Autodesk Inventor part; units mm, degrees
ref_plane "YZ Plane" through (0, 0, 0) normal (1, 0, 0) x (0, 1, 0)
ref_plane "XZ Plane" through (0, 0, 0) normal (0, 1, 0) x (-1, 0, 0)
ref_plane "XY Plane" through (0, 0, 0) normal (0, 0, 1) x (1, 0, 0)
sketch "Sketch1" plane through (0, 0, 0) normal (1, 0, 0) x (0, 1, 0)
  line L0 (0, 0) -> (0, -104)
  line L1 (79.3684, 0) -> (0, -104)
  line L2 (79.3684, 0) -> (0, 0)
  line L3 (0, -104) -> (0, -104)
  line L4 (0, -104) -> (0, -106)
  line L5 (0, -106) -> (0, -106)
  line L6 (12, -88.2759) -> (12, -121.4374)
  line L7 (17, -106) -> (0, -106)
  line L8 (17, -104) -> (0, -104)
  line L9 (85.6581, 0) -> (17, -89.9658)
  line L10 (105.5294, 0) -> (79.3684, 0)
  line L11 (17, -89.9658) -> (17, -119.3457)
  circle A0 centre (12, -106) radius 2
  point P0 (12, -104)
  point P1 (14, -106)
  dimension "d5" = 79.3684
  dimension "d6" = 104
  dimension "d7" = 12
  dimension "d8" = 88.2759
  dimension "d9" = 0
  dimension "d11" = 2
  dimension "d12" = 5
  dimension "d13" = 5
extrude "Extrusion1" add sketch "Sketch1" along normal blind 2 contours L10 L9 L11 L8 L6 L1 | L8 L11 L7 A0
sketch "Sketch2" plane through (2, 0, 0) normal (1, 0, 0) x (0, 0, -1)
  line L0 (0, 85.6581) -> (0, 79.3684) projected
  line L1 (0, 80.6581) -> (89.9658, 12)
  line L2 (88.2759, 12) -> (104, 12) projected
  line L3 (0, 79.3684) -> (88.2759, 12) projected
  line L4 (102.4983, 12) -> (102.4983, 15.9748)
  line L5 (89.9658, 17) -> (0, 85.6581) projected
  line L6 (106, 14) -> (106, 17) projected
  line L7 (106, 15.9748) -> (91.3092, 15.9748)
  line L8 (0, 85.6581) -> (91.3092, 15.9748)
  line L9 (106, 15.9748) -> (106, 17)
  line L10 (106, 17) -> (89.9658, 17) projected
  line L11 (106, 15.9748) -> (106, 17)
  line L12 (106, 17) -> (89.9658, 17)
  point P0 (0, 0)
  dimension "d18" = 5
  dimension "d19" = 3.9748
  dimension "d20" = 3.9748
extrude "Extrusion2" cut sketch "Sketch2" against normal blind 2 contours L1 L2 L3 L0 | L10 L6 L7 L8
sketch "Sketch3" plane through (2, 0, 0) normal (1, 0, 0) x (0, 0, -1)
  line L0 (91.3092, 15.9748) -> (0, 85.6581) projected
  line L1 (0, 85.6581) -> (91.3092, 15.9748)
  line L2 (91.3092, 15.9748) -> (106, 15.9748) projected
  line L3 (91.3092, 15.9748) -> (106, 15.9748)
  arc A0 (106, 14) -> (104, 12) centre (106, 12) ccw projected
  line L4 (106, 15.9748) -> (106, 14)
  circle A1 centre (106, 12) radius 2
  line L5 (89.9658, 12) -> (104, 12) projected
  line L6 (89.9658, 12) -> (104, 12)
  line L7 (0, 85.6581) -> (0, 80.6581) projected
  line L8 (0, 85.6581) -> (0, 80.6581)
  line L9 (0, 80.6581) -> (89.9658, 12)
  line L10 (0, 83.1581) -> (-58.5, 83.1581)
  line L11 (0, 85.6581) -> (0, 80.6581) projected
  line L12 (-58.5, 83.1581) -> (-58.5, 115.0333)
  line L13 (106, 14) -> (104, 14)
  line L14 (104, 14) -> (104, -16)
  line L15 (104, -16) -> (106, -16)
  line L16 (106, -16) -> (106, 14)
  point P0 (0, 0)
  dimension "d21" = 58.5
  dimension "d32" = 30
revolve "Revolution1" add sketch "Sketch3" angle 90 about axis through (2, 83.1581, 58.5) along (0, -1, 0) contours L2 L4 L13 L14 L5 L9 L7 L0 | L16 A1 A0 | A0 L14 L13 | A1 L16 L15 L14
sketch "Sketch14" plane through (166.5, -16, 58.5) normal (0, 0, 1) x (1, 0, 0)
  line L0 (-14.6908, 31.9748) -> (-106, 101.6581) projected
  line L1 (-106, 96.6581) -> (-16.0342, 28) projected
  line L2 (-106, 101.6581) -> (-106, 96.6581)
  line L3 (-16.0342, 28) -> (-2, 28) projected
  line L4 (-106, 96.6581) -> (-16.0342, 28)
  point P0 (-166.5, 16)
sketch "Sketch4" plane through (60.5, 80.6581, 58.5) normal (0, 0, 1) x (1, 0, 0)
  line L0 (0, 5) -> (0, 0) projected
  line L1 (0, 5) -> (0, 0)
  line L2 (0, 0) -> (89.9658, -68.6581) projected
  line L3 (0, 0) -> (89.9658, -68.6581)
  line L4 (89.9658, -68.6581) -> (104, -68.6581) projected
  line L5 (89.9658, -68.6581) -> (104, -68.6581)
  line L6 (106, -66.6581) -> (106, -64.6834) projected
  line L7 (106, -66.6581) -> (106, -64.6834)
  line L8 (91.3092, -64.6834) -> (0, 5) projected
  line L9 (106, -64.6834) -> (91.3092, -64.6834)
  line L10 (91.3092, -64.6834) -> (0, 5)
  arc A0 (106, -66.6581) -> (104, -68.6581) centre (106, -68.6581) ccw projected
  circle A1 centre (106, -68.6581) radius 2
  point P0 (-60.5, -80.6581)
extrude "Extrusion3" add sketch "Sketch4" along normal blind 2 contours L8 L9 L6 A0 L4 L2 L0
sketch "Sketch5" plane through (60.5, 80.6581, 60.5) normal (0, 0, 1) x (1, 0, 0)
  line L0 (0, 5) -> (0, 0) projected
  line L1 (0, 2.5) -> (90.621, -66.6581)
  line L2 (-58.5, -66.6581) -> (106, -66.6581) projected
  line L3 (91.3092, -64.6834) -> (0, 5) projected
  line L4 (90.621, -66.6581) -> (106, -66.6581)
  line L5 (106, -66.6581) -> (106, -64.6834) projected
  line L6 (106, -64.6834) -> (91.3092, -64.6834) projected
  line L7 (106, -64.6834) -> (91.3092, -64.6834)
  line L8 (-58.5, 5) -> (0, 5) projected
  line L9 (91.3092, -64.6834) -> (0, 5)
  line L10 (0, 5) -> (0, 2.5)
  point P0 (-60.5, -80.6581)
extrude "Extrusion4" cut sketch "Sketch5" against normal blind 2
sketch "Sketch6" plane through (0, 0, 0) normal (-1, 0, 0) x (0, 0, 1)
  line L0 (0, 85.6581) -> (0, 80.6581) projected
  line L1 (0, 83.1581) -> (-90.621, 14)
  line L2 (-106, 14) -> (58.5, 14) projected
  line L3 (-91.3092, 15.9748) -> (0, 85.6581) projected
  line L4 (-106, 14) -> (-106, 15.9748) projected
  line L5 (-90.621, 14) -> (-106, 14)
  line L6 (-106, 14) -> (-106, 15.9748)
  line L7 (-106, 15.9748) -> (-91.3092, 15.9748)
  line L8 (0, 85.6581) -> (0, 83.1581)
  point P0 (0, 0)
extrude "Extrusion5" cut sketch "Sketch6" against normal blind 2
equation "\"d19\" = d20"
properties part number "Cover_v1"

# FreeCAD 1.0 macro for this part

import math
import FreeCAD as App
import Part
import Sketcher
from FreeCAD import Vector
Q = App.Units.Quantity

doc = App.newDocument("Part")
params = doc.addObject("Spreadsheet::Sheet", "Params")
for row, (alias, value) in enumerate([
    ("sketch1_radius", "2 mm"),
    ("pad1_length", "2 mm"),
    ("sketch2_height", "1.69 mm"),
    ("pocket1_length", "2 mm"),
    ("sketch3_width", "5 mm"),
    ("sketch3_width2", "28 mm"),
    ("sketch3_height", "2 mm"),
    ("revolution_angle", "90 deg"),
    ("sketch4_radius", "2 mm"),
    ("sketch4_height", "5 mm"),
    ("pad2_length", "2 mm"),
    ("sketch5_height", "2.5 mm"),
    ("pocket2_length", "2 mm"),
    ("sketch6_width", "2.5 mm"),
    ("pocket3_length", "2 mm"),
], start=1):
    params.set(f"A{row}", alias)
    params.set(f"B{row}", "=" + value)
    params.setAlias(f"B{row}", alias)

body = doc.addObject("PartDesign::Body", "Body")

sketch1 = body.newObject("Sketcher::SketchObject", "Sketch")
sketch1.AttachmentSupport = (doc.getObject("YZ_Plane"), [""])
sketch1.MapMode = "FlatFace"
sketch1.addGeometry(Part.LineSegment(Vector(85.6581, 0, 0), Vector(79.3684, 0, 0)), False)
sketch1.addGeometry(Part.LineSegment(Vector(79.3684, 0, 0), Vector(11.99998, -88.275885, 0)), False)
sketch1.addGeometry(Part.LineSegment(Vector(12, -88.2759, 0), Vector(12, -104, 0)), False)
sketch1.addGeometry(Part.ArcOfCircle(Part.Circle(Vector(12, -106, 0), Vector(0, 0, 1), 2), math.radians(0), math.radians(90)), False)
sketch1.addGeometry(Part.LineSegment(Vector(14, -106, 0), Vector(17, -106, 0)), False)
sketch1.addGeometry(Part.LineSegment(Vector(17, -106, 0), Vector(17, -89.9658, 0)), False)
sketch1.addGeometry(Part.LineSegment(Vector(17, -89.9658, 0), Vector(85.6581, 0, 0)), False)
sketch1.addConstraint(Sketcher.Constraint("Coincident", 0, 2, 1, 1))
sketch1.addConstraint(Sketcher.Constraint("Coincident", 1, 2, 2, 1))
sketch1.addConstraint(Sketcher.Constraint("Coincident", 2, 2, 3, 2))
sketch1.addConstraint(Sketcher.Constraint("Coincident", 3, 1, 4, 1))
sketch1.addConstraint(Sketcher.Constraint("Coincident", 4, 2, 5, 1))
sketch1.addConstraint(Sketcher.Constraint("Coincident", 5, 2, 6, 1))
sketch1.addConstraint(Sketcher.Constraint("Coincident", 6, 2, 0, 1))
sketch1.addConstraint(Sketcher.Constraint("Horizontal", 0))
sketch1.addConstraint(Sketcher.Constraint("Vertical", 2))
sketch1.addConstraint(Sketcher.Constraint("Horizontal", 4))
sketch1.addConstraint(Sketcher.Constraint("Vertical", 5))
sketch1.addConstraint(Sketcher.Constraint("PointOnObject", 0, 2, -1))
sketch1.addConstraint(Sketcher.Constraint("Parallel", 1, 6))
sketch1.addConstraint(Sketcher.Constraint("Vertical", 3, 3, 1, 2))
sketch1.addConstraint(Sketcher.Constraint("Radius", 3, 2.0))
sketch1.addConstraint(Sketcher.Constraint("DistanceX", -1, 1, 3, 3, 12.0))
sketch1.addConstraint(Sketcher.Constraint("DistanceY", 2, 2, -1, 1, 104.0))
sketch1.addConstraint(Sketcher.Constraint("DistanceY", 3, 1, 2, 2, 2.0))
sketch1.addConstraint(Sketcher.Constraint("DistanceX", 3, 3, 4, 2, 5.0))
sketch1.addConstraint(Sketcher.Constraint("DistanceY", 1, 2, -1, 1, 88.276))
sketch1.addConstraint(Sketcher.Constraint("DistanceX", -1, 1, 0, 2, 79.3684))
sketch1.addConstraint(Sketcher.Constraint("DistanceY", 5, 2, 1, 2, 1.69))
sketch1.setExpression("Constraints[14]", "Params.sketch1_radius")
pad1 = body.newObject("PartDesign::Pad", "Pad")
pad1.Profile = sketch1
pad1.setExpression("Length", "Params.pad1_length")

sketch2 = body.newObject("Sketcher::SketchObject", "Sketch001")
sketch2.AttachmentSupport = (doc.getObject("YZ_Plane"), [""])
sketch2.MapMode = "FlatFace"
sketch2.AttachmentOffset = App.Placement(Vector(0, 0, 2), App.Rotation())
sketch2.addGeometry(Part.LineSegment(Vector(12, -89.9658, 0), Vector(80.6581, 0, 0)), False)
sketch2.addGeometry(Part.LineSegment(Vector(80.6581, 0, 0), Vector(79.3684, 0, 0)), False)
sketch2.addGeometry(Part.LineSegment(Vector(79.3684, 0, 0), Vector(12, -88.2759, 0)), False)
sketch2.addGeometry(Part.LineSegment(Vector(12, -88.2759, 0), Vector(12, -89.9658, 0)), False)
sketch2.addGeometry(Part.LineSegment(Vector(17, -106, 0), Vector(17, -89.9658, 0)), False)
sketch2.addGeometry(Part.LineSegment(Vector(17.000016, -89.965812, 0), Vector(15.9748, -91.3092, 0)), False)
sketch2.addGeometry(Part.LineSegment(Vector(15.9748, -91.3092, 0), Vector(15.9748, -106, 0)), False)
sketch2.addGeometry(Part.LineSegment(Vector(15.9748, -106, 0), Vector(17, -106, 0)), False)
sketch2.addConstraint(Sketcher.Constraint("Coincident", 0, 2, 1, 1))
sketch2.addConstraint(Sketcher.Constraint("Coincident", 1, 2, 2, 1))
sketch2.addConstraint(Sketcher.Constraint("Coincident", 2, 2, 3, 1))
sketch2.addConstraint(Sketcher.Constraint("Coincident", 3, 2, 0, 1))
sketch2.addConstraint(Sketcher.Constraint("Coincident", 4, 2, 5, 1))
sketch2.addConstraint(Sketcher.Constraint("Coincident", 5, 2, 6, 1))
sketch2.addConstraint(Sketcher.Constraint("Coincident", 6, 2, 7, 1))
sketch2.addConstraint(Sketcher.Constraint("Coincident", 7, 2, 4, 1))
sketch2.addConstraint(Sketcher.Constraint("Horizontal", 1))
sketch2.addConstraint(Sketcher.Constraint("Vertical", 3))
sketch2.addConstraint(Sketcher.Constraint("Vertical", 4))
sketch2.addConstraint(Sketcher.Constraint("Vertical", 6))
sketch2.addConstraint(Sketcher.Constraint("Horizontal", 7))
sketch2.addConstraint(Sketcher.Constraint("PointOnObject", 0, 2, -1))
sketch2.addConstraint(Sketcher.Constraint("Parallel", 0, 2))
sketch2.addConstraint(Sketcher.Constraint("Parallel", 2, 5))
sketch2.addConstraint(Sketcher.Constraint("Horizontal", 3, 2, 4, 2))
sketch2.addConstraint(Sketcher.Constraint("DistanceX", 3, 2, 4, 2, 5.0))
sketch2.addConstraint(Sketcher.Constraint("DistanceX", -1, 1, 2, 2, 12.0))
sketch2.addConstraint(Sketcher.Constraint("DistanceY", 6, 2, -1, 1, 106.0))
sketch2.addConstraint(Sketcher.Constraint("DistanceY", 3, 2, 3, 1, 1.69))
sketch2.addConstraint(Sketcher.Constraint("Angle", 0, Q("52.6507 deg")))
sketch2.addConstraint(Sketcher.Constraint("DistanceX", 3, 2, 5, 2, 3.9748))
sketch2.addConstraint(Sketcher.Constraint("DistanceY", 4, 1, 4, 2, 16.0342))
sketch2.setExpression("Constraints[20]", "Params.sketch2_height")
pocket1 = body.newObject("PartDesign::Pocket", "Pocket")
pocket1.Profile = sketch2
pocket1.setExpression("Length", "Params.pocket1_length")

sketch3 = body.newObject("Sketcher::SketchObject", "Sketch002")
sketch3.AttachmentSupport = (doc.getObject("YZ_Plane"), [""])
sketch3.MapMode = "FlatFace"
sketch3.AttachmentOffset = App.Placement(Vector(0, 0, 2), App.Rotation())
sketch3.addGeometry(Part.LineSegment(Vector(15.9748, -106, 0), Vector(15.9748, -91.3092, 0)), False)
sketch3.addGeometry(Part.LineSegment(Vector(15.9748, -91.3092, 0), Vector(85.6581, 0, 0)), False)
sketch3.addGeometry(Part.LineSegment(Vector(85.6581, 0, 0), Vector(80.6581, 0, 0)), False)
sketch3.addGeometry(Part.LineSegment(Vector(80.6581, 0, 0), Vector(12, -89.9658, 0)), False)
sketch3.addGeometry(Part.LineSegment(Vector(12, -89.9658, 0), Vector(12, -104, 0)), False)
sketch3.addGeometry(Part.LineSegment(Vector(12, -104, 0), Vector(-16, -104, 0)), False)
sketch3.addGeometry(Part.LineSegment(Vector(-16, -104, 0), Vector(-16, -106, 0)), False)
sketch3.addGeometry(Part.LineSegment(Vector(-16, -106, 0), Vector(15.9748, -106, 0)), False)
sketch3.addGeometry(Part.LineSegment(Vector(85.6581, 58.5, 0), Vector(-16, 58.5, 0)), True)
sketch3.addConstraint(Sketcher.Constraint("Coincident", 0, 2, 1, 1))
sketch3.addConstraint(Sketcher.Constraint("Coincident", 1, 2, 2, 1))
sketch3.addConstraint(Sketcher.Constraint("Coincident", 2, 2, 3, 1))
sketch3.addConstraint(Sketcher.Constraint("Coincident", 3, 2, 4, 1))
sketch3.addConstraint(Sketcher.Constraint("Coincident", 4, 2, 5, 1))
sketch3.addConstraint(Sketcher.Constraint("Coincident", 5, 2, 6, 1))
sketch3.addConstraint(Sketcher.Constraint("Coincident", 6, 2, 7, 1))
sketch3.addConstraint(Sketcher.Constraint("Coincident", 7, 2, 0, 1))
sketch3.addConstraint(Sketcher.Constraint("Vertical", 0))
sketch3.addConstraint(Sketcher.Constraint("Horizontal", 2))
sketch3.addConstraint(Sketcher.Constraint("Vertical", 4))
sketch3.addConstraint(Sketcher.Constraint("Horizontal", 5))
sketch3.addConstraint(Sketcher.Constraint("Vertical", 6))
sketch3.addConstraint(Sketcher.Constraint("Horizontal", 7))
sketch3.addConstraint(Sketcher.Constraint("Horizontal", 8))
sketch3.addConstraint(Sketcher.Constraint("PointOnObject", 1, 2, -1))
sketch3.addConstraint(Sketcher.Constraint("Parallel", 1, 3))
sketch3.addConstraint(Sketcher.Constraint("Vertical", 1, 2, 8, 1))
sketch3.addConstraint(Sketcher.Constraint("Vertical", 6, 2, 8, 2))
sketch3.addConstraint(Sketcher.Constraint("DistanceY", -1, 1, 8, 1, 58.5))
sketch3.addConstraint(Sketcher.Constraint("DistanceX", 2, 2, 2, 1, 5.0))
sketch3.addConstraint(Sketcher.Constraint("DistanceX", 5, 2, 5, 1, 28.0))
sketch3.addConstraint(Sketcher.Constraint("DistanceY", 6, 2, 6, 1, 2.0))
sketch3.addConstraint(Sketcher.Constraint("DistanceX", -1, 1, 3, 2, 12.0))
sketch3.addConstraint(Sketcher.Constraint("DistanceY", 4, 2, -1, 1, 104.0))
sketch3.addConstraint(Sketcher.Constraint("Angle", 1, Q("52.6507 deg")))
sketch3.addConstraint(Sketcher.Constraint("DistanceX", 8, 2, 8, 1, 101.658))
sketch3.addConstraint(Sketcher.Constraint("DistanceX", 7, 1, 7, 2, 31.9748))
sketch3.setExpression("Constraints[20]", "Params.sketch3_width")
sketch3.setExpression("Constraints[21]", "Params.sketch3_width2")
sketch3.setExpression("Constraints[22]", "Params.sketch3_height")
revolution = body.newObject("PartDesign::Revolution", "Revolution")
revolution.Profile = sketch3
revolution.ReferenceAxis = (sketch3, ["Axis0"])
revolution.setExpression("Angle", "Params.revolution_angle")

sketch4 = body.newObject("Sketcher::SketchObject", "Sketch003")
sketch4.AttachmentSupport = (doc.getObject("XY_Plane"), [""])
sketch4.MapMode = "FlatFace"
sketch4.AttachmentOffset = App.Placement(Vector(0, 0, 58.5), App.Rotation())
sketch4.addGeometry(Part.LineSegment(Vector(151.8092, 15.9747, 0), Vector(60.5, 85.6581, 0)), False)
sketch4.addGeometry(Part.LineSegment(Vector(60.5, 85.6581, 0), Vector(60.5, 80.6581, 0)), False)
sketch4.addGeometry(Part.LineSegment(Vector(60.5, 80.6581, 0), Vector(150.4658, 12, 0)), False)
sketch4.addGeometry(Part.LineSegment(Vector(150.4658, 12, 0), Vector(164.5, 12, 0)), False)
sketch4.addGeometry(Part.ArcOfCircle(Part.Circle(Vector(166.5, 12, 0), Vector(0, 0, 1), 2), math.radians(90), math.radians(180)), False)
sketch4.addGeometry(Part.LineSegment(Vector(166.5, 14, 0), Vector(166.5, 15.9747, 0)), False)
sketch4.addGeometry(Part.LineSegment(Vector(166.5, 15.9747, 0), Vector(151.8092, 15.9747, 0)), False)
sketch4.addConstraint(Sketcher.Constraint("Coincident", 0, 2, 1, 1))
sketch4.addConstraint(Sketcher.Constraint("Coincident", 1, 2, 2, 1))
sketch4.addConstraint(Sketcher.Constraint("Coincident", 2, 2, 3, 1))
sketch4.addConstraint(Sketcher.Constraint("Coincident", 3, 2, 4, 2))
sketch4.addConstraint(Sketcher.Constraint("Coincident", 4, 1, 5, 1))
sketch4.addConstraint(Sketcher.Constraint("Coincident", 5, 2, 6, 1))
sketch4.addConstraint(Sketcher.Constraint("Coincident", 6, 2, 0, 1))
sketch4.addConstraint(Sketcher.Constraint("Vertical", 1))
sketch4.addConstraint(Sketcher.Constraint("Horizontal", 3))
sketch4.addConstraint(Sketcher.Constraint("Vertical", 5))
sketch4.addConstraint(Sketcher.Constraint("Horizontal", 6))
sketch4.addConstraint(Sketcher.Constraint("Parallel", 0, 2))
sketch4.addConstraint(Sketcher.Constraint("Horizontal", 4, 3, 2, 2))
sketch4.addConstraint(Sketcher.Constraint("Radius", 4, 2.0))
sketch4.addConstraint(Sketcher.Constraint("DistanceY", 1, 2, 1, 1, 5.0))
sketch4.addConstraint(Sketcher.Constraint("DistanceY", -1, 1, 4, 3, 12.0))
sketch4.addConstraint(Sketcher.Constraint("DistanceX", 0, 2, 4, 3, 106.0))
sketch4.addConstraint(Sketcher.Constraint("DistanceX", 3, 2, 4, 1, 2.0))
sketch4.addConstraint(Sketcher.Constraint("DistanceX", -1, 1, 4, 3, 166.5))
sketch4.addConstraint(Sketcher.Constraint("Angle", 0, Q("142.6506 deg")))
sketch4.addConstraint(Sketcher.Constraint("DistanceX", 3, 1, 3, 2, 14.0342))
sketch4.addConstraint(Sketcher.Constraint("DistanceX", 6, 2, 6, 1, 14.6908))
sketch4.setExpression("Constraints[13]", "Params.sketch4_radius")
sketch4.setExpression("Constraints[14]", "Params.sketch4_height")
pad2 = body.newObject("PartDesign::Pad", "Pad001")
pad2.Profile = sketch4
pad2.setExpression("Length", "Params.pad2_length")

sketch5 = body.newObject("Sketcher::SketchObject", "Sketch004")
sketch5.AttachmentSupport = (doc.getObject("XY_Plane"), [""])
sketch5.MapMode = "FlatFace"
sketch5.AttachmentOffset = App.Placement(Vector(0, 0, 60.5), App.Rotation())
sketch5.addGeometry(Part.LineSegment(Vector(151.8092, 15.9747, 0), Vector(60.5, 85.6581, 0)), False)
sketch5.addGeometry(Part.LineSegment(Vector(60.5, 85.6581, 0), Vector(60.5, 83.1581, 0)), False)
sketch5.addGeometry(Part.LineSegment(Vector(60.5, 83.1581, 0), Vector(151.121, 14, 0)), False)
sketch5.addGeometry(Part.LineSegment(Vector(151.121, 14, 0), Vector(166.5, 14, 0)), False)
sketch5.addGeometry(Part.LineSegment(Vector(166.5, 14, 0), Vector(166.5, 15.9747, 0)), False)
sketch5.addGeometry(Part.LineSegment(Vector(166.5, 15.9747, 0), Vector(151.8092, 15.9747, 0)), False)
sketch5.addConstraint(Sketcher.Constraint("Coincident", 0, 2, 1, 1))
sketch5.addConstraint(Sketcher.Constraint("Coincident", 1, 2, 2, 1))
sketch5.addConstraint(Sketcher.Constraint("Coincident", 2, 2, 3, 1))
sketch5.addConstraint(Sketcher.Constraint("Coincident", 3, 2, 4, 1))
sketch5.addConstraint(Sketcher.Constraint("Coincident", 4, 2, 5, 1))
sketch5.addConstraint(Sketcher.Constraint("Coincident", 5, 2, 0, 1))
sketch5.addConstraint(Sketcher.Constraint("Vertical", 1))
sketch5.addConstraint(Sketcher.Constraint("Horizontal", 3))
sketch5.addConstraint(Sketcher.Constraint("Vertical", 4))
sketch5.addConstraint(Sketcher.Constraint("Horizontal", 5))
sketch5.addConstraint(Sketcher.Constraint("Parallel", 0, 2))
sketch5.addConstraint(Sketcher.Constraint("DistanceY", 1, 2, 1, 1, 2.5))
sketch5.addConstraint(Sketcher.Constraint("DistanceY", -1, 1, 2, 2, 14.0))
sketch5.addConstraint(Sketcher.Constraint("DistanceX", 1, 2, 3, 2, 106.0))
sketch5.addConstraint(Sketcher.Constraint("DistanceX", -1, 1, 0, 2, 60.5))
sketch5.addConstraint(Sketcher.Constraint("Angle", 0, Q("142.6506 deg")))
sketch5.addConstraint(Sketcher.Constraint("DistanceX", 3, 1, 3, 2, 15.379))
sketch5.addConstraint(Sketcher.Constraint("DistanceX", 5, 2, 5, 1, 14.6908))
sketch5.setExpression("Constraints[11]", "Params.sketch5_height")
pocket2 = body.newObject("PartDesign::Pocket", "Pocket001")
pocket2.Profile = sketch5
pocket2.setExpression("Length", "Params.pocket2_length")

sketch6 = body.newObject("Sketcher::SketchObject", "Sketch005")
sketch6.AttachmentSupport = (doc.getObject("YZ_Plane"), [""])
sketch6.MapMode = "FlatFace"
sketch6.addGeometry(Part.LineSegment(Vector(83.1581, 0, 0), Vector(85.6581, 0, 0)), False)
sketch6.addGeometry(Part.LineSegment(Vector(85.6581, 0, 0), Vector(15.9748, -91.3092, 0)), False)
sketch6.addGeometry(Part.LineSegment(Vector(15.9748, -91.3092, 0), Vector(15.9748, -106, 0)), False)
sketch6.addGeometry(Part.LineSegment(Vector(15.9748, -106, 0), Vector(14, -106, 0)), False)
sketch6.addGeometry(Part.LineSegment(Vector(14, -106, 0), Vector(14, -90.621, 0)), False)
sketch6.addGeometry(Part.LineSegment(Vector(14, -90.621, 0), Vector(83.1581, 0, 0)), False)
sketch6.addConstraint(Sketcher.Constraint("Coincident", 0, 2, 1, 1))
sketch6.addConstraint(Sketcher.Constraint("Coincident", 1, 2, 2, 1))
sketch6.addConstraint(Sketcher.Constraint("Coincident", 2, 2, 3, 1))
sketch6.addConstraint(Sketcher.Constraint("Coincident", 3, 2, 4, 1))
sketch6.addConstraint(Sketcher.Constraint("Coincident", 4, 2, 5, 1))
sketch6.addConstraint(Sketcher.Constraint("Coincident", 5, 2, 0, 1))
sketch6.addConstraint(Sketcher.Constraint("Horizontal", 0))
sketch6.addConstraint(Sketcher.Constraint("Vertical", 2))
sketch6.addConstraint(Sketcher.Constraint("Horizontal", 3))
sketch6.addConstraint(Sketcher.Constraint("Vertical", 4))
sketch6.addConstraint(Sketcher.Constraint("PointOnObject", 0, 2, -1))
sketch6.addConstraint(Sketcher.Constraint("Parallel", 1, 5))
sketch6.addConstraint(Sketcher.Constraint("DistanceX", 0, 1, 0, 2, 2.5))
sketch6.addConstraint(Sketcher.Constraint("DistanceY", 2, 2, -1, 1, 106.0))
sketch6.addConstraint(Sketcher.Constraint("DistanceX", -1, 1, 3, 2, 14.0))
sketch6.addConstraint(Sketcher.Constraint("Angle", 1, Q("-127.3493 deg")))
sketch6.addConstraint(Sketcher.Constraint("DistanceY", 4, 1, 4, 2, 15.379))
sketch6.addConstraint(Sketcher.Constraint("DistanceX", 3, 2, 3, 1, 1.9748))
sketch6.setExpression("Constraints[12]", "Params.sketch6_width")
pocket3 = body.newObject("PartDesign::Pocket", "Pocket002")
pocket3.Profile = sketch6
pocket3.setExpression("Length", "Params.pocket3_length")
pocket3.Reversed = True

doc.recompute()
